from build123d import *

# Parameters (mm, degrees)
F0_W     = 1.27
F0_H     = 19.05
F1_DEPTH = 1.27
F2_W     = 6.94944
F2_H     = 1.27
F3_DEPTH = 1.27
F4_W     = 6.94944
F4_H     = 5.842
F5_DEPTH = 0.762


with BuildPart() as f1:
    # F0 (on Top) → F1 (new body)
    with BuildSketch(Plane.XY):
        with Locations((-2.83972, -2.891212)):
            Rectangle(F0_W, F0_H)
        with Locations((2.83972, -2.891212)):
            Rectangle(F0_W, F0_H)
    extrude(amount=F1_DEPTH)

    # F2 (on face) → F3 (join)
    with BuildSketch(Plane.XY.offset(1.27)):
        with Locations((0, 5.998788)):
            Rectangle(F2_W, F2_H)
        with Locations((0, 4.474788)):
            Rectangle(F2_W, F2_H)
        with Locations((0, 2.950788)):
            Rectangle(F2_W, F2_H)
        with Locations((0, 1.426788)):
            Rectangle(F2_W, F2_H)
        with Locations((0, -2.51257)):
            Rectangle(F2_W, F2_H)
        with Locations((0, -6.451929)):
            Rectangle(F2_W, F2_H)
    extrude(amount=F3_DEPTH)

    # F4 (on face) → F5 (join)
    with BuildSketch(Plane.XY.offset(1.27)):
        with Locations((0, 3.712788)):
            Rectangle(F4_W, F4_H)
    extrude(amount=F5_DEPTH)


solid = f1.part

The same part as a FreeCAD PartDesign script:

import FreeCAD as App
import Part
import Sketcher
from FreeCAD import Vector
Q = App.Units.Quantity

doc = App.newDocument("Part")
body = doc.addObject("PartDesign::Body", "Body")
body.AllowCompound = True

# Sketch on XY plane
sketch1 = body.newObject("Sketcher::SketchObject", "Sketch")
sketch1.AttachmentSupport = (doc.getObject("XY_Plane"), [""])
sketch1.MapMode = "FlatFace"
sketch1.addGeometry(Part.LineSegment(Vector(-3.5, 6.6, 0), Vector(-3.5, -12.4, 0)), False)
sketch1.addGeometry(Part.LineSegment(Vector(-3.5, -12.4, 0), Vector(-2.2, -12.4, 0)), False)
sketch1.addGeometry(Part.LineSegment(Vector(-2.2, -12.4, 0), Vector(-2.2, 6.6, 0)), False)
sketch1.addGeometry(Part.LineSegment(Vector(-2.2, 6.6, 0), Vector(-3.5, 6.6, 0)), False)
sketch1.addGeometry(Part.LineSegment(Vector(2.2, 6.6, 0), Vector(2.2, -12.4, 0)), False)
sketch1.addGeometry(Part.LineSegment(Vector(2.2, -12.4, 0), Vector(3.5, -12.4, 0)), False)
sketch1.addGeometry(Part.LineSegment(Vector(3.5, -12.4, 0), Vector(3.5, 6.6, 0)), False)
sketch1.addGeometry(Part.LineSegment(Vector(3.5, 6.6, 0), Vector(2.2, 6.6, 0)), False)
sketch1.addConstraint(Sketcher.Constraint("Coincident", 0, 2, 1, 1))
sketch1.addConstraint(Sketcher.Constraint("Coincident", 1, 2, 2, 1))
sketch1.addConstraint(Sketcher.Constraint("Coincident", 2, 2, 3, 1))
sketch1.addConstraint(Sketcher.Constraint("Coincident", 3, 2, 0, 1))
sketch1.addConstraint(Sketcher.Constraint("Coincident", 4, 2, 5, 1))
sketch1.addConstraint(Sketcher.Constraint("Coincident", 5, 2, 6, 1))
sketch1.addConstraint(Sketcher.Constraint("Coincident", 6, 2, 7, 1))
sketch1.addConstraint(Sketcher.Constraint("Coincident", 7, 2, 4, 1))
sketch1.addConstraint(Sketcher.Constraint("Vertical", 0))
sketch1.addConstraint(Sketcher.Constraint("Horizontal", 1))
sketch1.addConstraint(Sketcher.Constraint("Vertical", 2))
sketch1.addConstraint(Sketcher.Constraint("Horizontal", 3))
sketch1.addConstraint(Sketcher.Constraint("Vertical", 4))
sketch1.addConstraint(Sketcher.Constraint("Horizontal", 5))
sketch1.addConstraint(Sketcher.Constraint("Vertical", 6))
sketch1.addConstraint(Sketcher.Constraint("Horizontal", 7))
sketch1.addConstraint(Sketcher.Constraint("Symmetric", 1, 2, 4, 2, -2))
sketch1.addConstraint(Sketcher.Constraint("Symmetric", 3, 2, 6, 2, -2))
sketch1.addConstraint(Sketcher.Constraint("DistanceX", 1, 1, 1, 2, Q("0.05 in")))
sketch1.addConstraint(Sketcher.Constraint("DistanceY", 0, 2, 0, 1, Q("0.75 in")))
sketch1.addConstraint(Sketcher.Constraint("DistanceX", 0, 2, -1, 1, Q("0.1368 in")))
sketch1.addConstraint(Sketcher.Constraint("DistanceY", 0, 2, -1, 1, Q("12.416212 mm")))
pad1 = body.newObject("PartDesign::Pad", "Pad")
pad1.Profile = sketch1
pad1.Length = Q("0.05 in")

# Sketch on XY plane
sketch2 = body.newObject("Sketcher::SketchObject", "Sketch001")
sketch2.AttachmentSupport = (doc.getObject("XY_Plane"), [""])
sketch2.MapMode = "FlatFace"
sketch2.AttachmentOffset = App.Placement(Vector(0, 0, 0.05 * 25.4), App.Rotation())
sketch2.addGeometry(Part.LineSegment(Vector(-3.5, 6.6, 0), Vector(-3.5, 5.4, 0)), False)
sketch2.addGeometry(Part.LineSegment(Vector(-3.5, 5.4, 0), Vector(3.5, 5.4, 0)), False)
sketch2.addGeometry(Part.LineSegment(Vector(3.5, 5.4, 0), Vector(3.5, 6.6, 0)), False)
sketch2.addGeometry(Part.LineSegment(Vector(3.5, 6.6, 0), Vector(-3.5, 6.6, 0)), False)
sketch2.addGeometry(Part.LineSegment(Vector(-3.5, 5.1, 0), Vector(-3.5, 3.8, 0)), False)
sketch2.addGeometry(Part.LineSegment(Vector(-3.5, 3.8, 0), Vector(3.5, 3.8, 0)), False)
sketch2.addGeometry(Part.LineSegment(Vector(3.5, 3.8, 0), Vector(3.5, 5.1, 0)), False)
sketch2.addGeometry(Part.LineSegment(Vector(3.5, 5.1, 0), Vector(-3.5, 5.1, 0)), False)
sketch2.addGeometry(Part.LineSegment(Vector(-3.5, 3.6, 0), Vector(-3.5, 2.3, 0)), False)
sketch2.addGeometry(Part.LineSegment(Vector(-3.5, 2.3, 0), Vector(3.5, 2.3, 0)), False)
sketch2.addGeometry(Part.LineSegment(Vector(3.5, 2.3, 0), Vector(3.5, 3.6, 0)), False)
sketch2.addGeometry(Part.LineSegment(Vector(3.5, 3.6, 0), Vector(-3.5, 3.6, 0)), False)
sketch2.addGeometry(Part.LineSegment(Vector(-3.5, 2.1, 0), Vector(-3.5, 0.8, 0)), False)
sketch2.addGeometry(Part.LineSegment(Vector(-3.5, 0.8, 0), Vector(3.5, 0.8, 0)), False)
sketch2.addGeometry(Part.LineSegment(Vector(3.5, 0.8, 0), Vector(3.5, 2.1, 0)), False)
sketch2.addGeometry(Part.LineSegment(Vector(3.5, 2.1, 0), Vector(-3.5, 2.1, 0)), False)
sketch2.addGeometry(Part.LineSegment(Vector(-3.5, -1.9, 0), Vector(-3.5, -3.1, 0)), False)
sketch2.addGeometry(Part.LineSegment(Vector(-3.5, -3.1, 0), Vector(3.5, -3.1, 0)), False)
sketch2.addGeometry(Part.LineSegment(Vector(3.5, -3.1, 0), Vector(3.5, -1.9, 0)), False)
sketch2.addGeometry(Part.LineSegment(Vector(3.5, -1.9, 0), Vector(-3.5, -1.9, 0)), False)
sketch2.addGeometry(Part.LineSegment(Vector(-3.5, -5.8, 0), Vector(-3.5, -7.1, 0)), False)
sketch2.addGeometry(Part.LineSegment(Vector(-3.5, -7.1, 0), Vector(3.5, -7.1, 0)), False)
sketch2.addGeometry(Part.LineSegment(Vector(3.5, -7.1, 0), Vector(3.5, -5.8, 0)), False)
sketch2.addGeometry(Part.LineSegment(Vector(3.5, -5.8, 0), Vector(-3.5, -5.8, 0)), False)
sketch2.addConstraint(Sketcher.Constraint("Coincident", 0, 2, 1, 1))
sketch2.addConstraint(Sketcher.Constraint("Coincident", 1, 2, 2, 1))
sketch2.addConstraint(Sketcher.Constraint("Coincident", 2, 2, 3, 1))
sketch2.addConstraint(Sketcher.Constraint("Coincident", 3, 2, 0, 1))
sketch2.addConstraint(Sketcher.Constraint("Coincident", 4, 2, 5, 1))
sketch2.addConstraint(Sketcher.Constraint("Coincident", 5, 2, 6, 1))
sketch2.addConstraint(Sketcher.Constraint("Coincident", 6, 2, 7, 1))
sketch2.addConstraint(Sketcher.Constraint("Coincident", 7, 2, 4, 1))
sketch2.addConstraint(Sketcher.Constraint("Coincident", 8, 2, 9, 1))
sketch2.addConstraint(Sketcher.Constraint("Coincident", 9, 2, 10, 1))
sketch2.addConstraint(Sketcher.Constraint("Coincident", 10, 2, 11, 1))
sketch2.addConstraint(Sketcher.Constraint("Coincident", 11, 2, 8, 1))
sketch2.addConstraint(Sketcher.Constraint("Coincident", 12, 2, 13, 1))
sketch2.addConstraint(Sketcher.Constraint("Coincident", 13, 2, 14, 1))
sketch2.addConstraint(Sketcher.Constraint("Coincident", 14, 2, 15, 1))
sketch2.addConstraint(Sketcher.Constraint("Coincident", 15, 2, 12, 1))
sketch2.addConstraint(Sketcher.Constraint("Coincident", 16, 2, 17, 1))
sketch2.addConstraint(Sketcher.Constraint("Coincident", 17, 2, 18, 1))
sketch2.addConstraint(Sketcher.Constraint("Coincident", 18, 2, 19, 1))
sketch2.addConstraint(Sketcher.Constraint("Coincident", 19, 2, 16, 1))
sketch2.addConstraint(Sketcher.Constraint("Coincident", 20, 2, 21, 1))
sketch2.addConstraint(Sketcher.Constraint("Coincident", 21, 2, 22, 1))
sketch2.addConstraint(Sketcher.Constraint("Coincident", 22, 2, 23, 1))
sketch2.addConstraint(Sketcher.Constraint("Coincident", 23, 2, 20, 1))
sketch2.addConstraint(Sketcher.Constraint("Vertical", 0))
sketch2.addConstraint(Sketcher.Constraint("Horizontal", 1))
sketch2.addConstraint(Sketcher.Constraint("Vertical", 2))
sketch2.addConstraint(Sketcher.Constraint("Horizontal", 3))
sketch2.addConstraint(Sketcher.Constraint("Vertical", 4))
sketch2.addConstraint(Sketcher.Constraint("Horizontal", 5))
sketch2.addConstraint(Sketcher.Constraint("Vertical", 6))
sketch2.addConstraint(Sketcher.Constraint("Horizontal", 7))
sketch2.addConstraint(Sketcher.Constraint("Vertical", 8))
sketch2.addConstraint(Sketcher.Constraint("Horizontal", 9))
sketch2.addConstraint(Sketcher.Constraint("Vertical", 10))
sketch2.addConstraint(Sketcher.Constraint("Horizontal", 11))
sketch2.addConstraint(Sketcher.Constraint("Vertical", 12))
sketch2.addConstraint(Sketcher.Constraint("Horizontal", 13))
sketch2.addConstraint(Sketcher.Constraint("Vertical", 14))
sketch2.addConstraint(Sketcher.Constraint("Horizontal", 15))
sketch2.addConstraint(Sketcher.Constraint("Vertical", 16))
sketch2.addConstraint(Sketcher.Constraint("Horizontal", 17))
sketch2.addConstraint(Sketcher.Constraint("Vertical", 18))
sketch2.addConstraint(Sketcher.Constraint("Horizontal", 19))
sketch2.addConstraint(Sketcher.Constraint("Vertical", 20))
sketch2.addConstraint(Sketcher.Constraint("Horizontal", 21))
sketch2.addConstraint(Sketcher.Constraint("Vertical", 22))
sketch2.addConstraint(Sketcher.Constraint("Horizontal", 23))
sketch2.addConstraint(Sketcher.Constraint("Vertical", 3, 2, 4, 2))
sketch2.addConstraint(Sketcher.Constraint("Vertical", 2, 2, 5, 2))
sketch2.addConstraint(Sketcher.Constraint("Vertical", 7, 2, 8, 2))
sketch2.addConstraint(Sketcher.Constraint("Vertical", 6, 2, 9, 2))
sketch2.addConstraint(Sketcher.Constraint("Vertical", 11, 2, 12, 2))
sketch2.addConstraint(Sketcher.Constraint("Vertical", 10, 2, 13, 2))
sketch2.addConstraint(Sketcher.Constraint("Vertical", 15, 2, 16, 2))
sketch2.addConstraint(Sketcher.Constraint("Vertical", 14, 2, 17, 2))
sketch2.addConstraint(Sketcher.Constraint("Vertical", 19, 2, 20, 2))
sketch2.addConstraint(Sketcher.Constraint("Vertical", 18, 2, 21, 2))
sketch2.addConstraint(Sketcher.Constraint("Equal", 2, 4))
sketch2.addConstraint(Sketcher.Constraint("Equal", 6, 8))
sketch2.addConstraint(Sketcher.Constraint("Equal", 10, 12))
sketch2.addConstraint(Sketcher.Constraint("Equal", 14, 16))
sketch2.addConstraint(Sketcher.Constraint("Equal", 18, 20))
sketch2.addConstraint(Sketcher.Constraint("DistanceY", 0, 2, 0, 1, Q("0.05 in")))
sketch2.addConstraint(Sketcher.Constraint("DistanceY", 4, 2, 0, 2, Q("0.06 in")))
sketch2.addConstraint(Sketcher.Constraint("DistanceY", 8, 2, 4, 2, Q("0.06 in")))
sketch2.addConstraint(Sketcher.Constraint("DistanceY", 12, 2, 8, 2, Q("0.06 in")))
sketch2.addConstraint(Sketcher.Constraint("DistanceX", 1, 1, 1, 2, Q("0.2736 in")))
sketch2.addConstraint(Sketcher.Constraint("DistanceX", 0, 2, -1, 1, Q("0.1368 in")))
sketch2.addConstraint(Sketcher.Constraint("DistanceY", -1, 1, 4, 2, Q("3.839788 mm")))
sketch2.addConstraint(Sketcher.Constraint("DistanceY", 16, 2, -1, 1, Q("3.14757 mm")))
sketch2.addConstraint(Sketcher.Constraint("DistanceY", 20, 2, -1, 1, Q("7.086929 mm")))
pad2 = body.newObject("PartDesign::Pad", "Pad001")
pad2.Profile = sketch2
pad2.Length = Q("0.05 in")

# Sketch on XY plane
sketch3 = body.newObject("Sketcher::SketchObject", "Sketch002")
sketch3.AttachmentSupport = (doc.getObject("XY_Plane"), [""])
sketch3.MapMode = "FlatFace"
sketch3.AttachmentOffset = App.Placement(Vector(0, 0, 0.05 * 25.4), App.Rotation())
sketch3.addGeometry(Part.LineSegment(Vector(-3, 7, 0), Vector(-3, 1, 0)), False)
sketch3.addGeometry(Part.LineSegment(Vector(-3, 1, 0), Vector(3, 1, 0)), False)
sketch3.addGeometry(Part.LineSegment(Vector(3, 1, 0), Vector(3, 7, 0)), False)
sketch3.addGeometry(Part.LineSegment(Vector(3, 7, 0), Vector(-3, 7, 0)), False)
sketch3.addConstraint(Sketcher.Constraint("Coincident", 0, 2, 1, 1))
sketch3.addConstraint(Sketcher.Constraint("Coincident", 1, 2, 2, 1))
sketch3.addConstraint(Sketcher.Constraint("Coincident", 2, 2, 3, 1))
sketch3.addConstraint(Sketcher.Constraint("Coincident", 3, 2, 0, 1))
sketch3.addConstraint(Sketcher.Constraint("Vertical", 0))
sketch3.addConstraint(Sketcher.Constraint("Horizontal", 1))
sketch3.addConstraint(Sketcher.Constraint("Vertical", 2))
sketch3.addConstraint(Sketcher.Constraint("Horizontal", 3))
sketch3.addConstraint(Sketcher.Constraint("DistanceY", 0, 2, 0, 1, Q("0.23 in")))
sketch3.addConstraint(Sketcher.Constraint("DistanceX", 1, 1, 1, 2, Q("0.2736 in")))
sketch3.addConstraint(Sketcher.Constraint("DistanceX", 0, 2, -1, 1, Q("0.1368 in")))
sketch3.addConstraint(Sketcher.Constraint("DistanceY", -1, 1, 0, 2, Q("0.791788 mm")))
pad3 = body.newObject("PartDesign::Pad", "Pad002")
pad3.Profile = sketch3
pad3.Length = Q("0.03 in")

doc.recompute()
